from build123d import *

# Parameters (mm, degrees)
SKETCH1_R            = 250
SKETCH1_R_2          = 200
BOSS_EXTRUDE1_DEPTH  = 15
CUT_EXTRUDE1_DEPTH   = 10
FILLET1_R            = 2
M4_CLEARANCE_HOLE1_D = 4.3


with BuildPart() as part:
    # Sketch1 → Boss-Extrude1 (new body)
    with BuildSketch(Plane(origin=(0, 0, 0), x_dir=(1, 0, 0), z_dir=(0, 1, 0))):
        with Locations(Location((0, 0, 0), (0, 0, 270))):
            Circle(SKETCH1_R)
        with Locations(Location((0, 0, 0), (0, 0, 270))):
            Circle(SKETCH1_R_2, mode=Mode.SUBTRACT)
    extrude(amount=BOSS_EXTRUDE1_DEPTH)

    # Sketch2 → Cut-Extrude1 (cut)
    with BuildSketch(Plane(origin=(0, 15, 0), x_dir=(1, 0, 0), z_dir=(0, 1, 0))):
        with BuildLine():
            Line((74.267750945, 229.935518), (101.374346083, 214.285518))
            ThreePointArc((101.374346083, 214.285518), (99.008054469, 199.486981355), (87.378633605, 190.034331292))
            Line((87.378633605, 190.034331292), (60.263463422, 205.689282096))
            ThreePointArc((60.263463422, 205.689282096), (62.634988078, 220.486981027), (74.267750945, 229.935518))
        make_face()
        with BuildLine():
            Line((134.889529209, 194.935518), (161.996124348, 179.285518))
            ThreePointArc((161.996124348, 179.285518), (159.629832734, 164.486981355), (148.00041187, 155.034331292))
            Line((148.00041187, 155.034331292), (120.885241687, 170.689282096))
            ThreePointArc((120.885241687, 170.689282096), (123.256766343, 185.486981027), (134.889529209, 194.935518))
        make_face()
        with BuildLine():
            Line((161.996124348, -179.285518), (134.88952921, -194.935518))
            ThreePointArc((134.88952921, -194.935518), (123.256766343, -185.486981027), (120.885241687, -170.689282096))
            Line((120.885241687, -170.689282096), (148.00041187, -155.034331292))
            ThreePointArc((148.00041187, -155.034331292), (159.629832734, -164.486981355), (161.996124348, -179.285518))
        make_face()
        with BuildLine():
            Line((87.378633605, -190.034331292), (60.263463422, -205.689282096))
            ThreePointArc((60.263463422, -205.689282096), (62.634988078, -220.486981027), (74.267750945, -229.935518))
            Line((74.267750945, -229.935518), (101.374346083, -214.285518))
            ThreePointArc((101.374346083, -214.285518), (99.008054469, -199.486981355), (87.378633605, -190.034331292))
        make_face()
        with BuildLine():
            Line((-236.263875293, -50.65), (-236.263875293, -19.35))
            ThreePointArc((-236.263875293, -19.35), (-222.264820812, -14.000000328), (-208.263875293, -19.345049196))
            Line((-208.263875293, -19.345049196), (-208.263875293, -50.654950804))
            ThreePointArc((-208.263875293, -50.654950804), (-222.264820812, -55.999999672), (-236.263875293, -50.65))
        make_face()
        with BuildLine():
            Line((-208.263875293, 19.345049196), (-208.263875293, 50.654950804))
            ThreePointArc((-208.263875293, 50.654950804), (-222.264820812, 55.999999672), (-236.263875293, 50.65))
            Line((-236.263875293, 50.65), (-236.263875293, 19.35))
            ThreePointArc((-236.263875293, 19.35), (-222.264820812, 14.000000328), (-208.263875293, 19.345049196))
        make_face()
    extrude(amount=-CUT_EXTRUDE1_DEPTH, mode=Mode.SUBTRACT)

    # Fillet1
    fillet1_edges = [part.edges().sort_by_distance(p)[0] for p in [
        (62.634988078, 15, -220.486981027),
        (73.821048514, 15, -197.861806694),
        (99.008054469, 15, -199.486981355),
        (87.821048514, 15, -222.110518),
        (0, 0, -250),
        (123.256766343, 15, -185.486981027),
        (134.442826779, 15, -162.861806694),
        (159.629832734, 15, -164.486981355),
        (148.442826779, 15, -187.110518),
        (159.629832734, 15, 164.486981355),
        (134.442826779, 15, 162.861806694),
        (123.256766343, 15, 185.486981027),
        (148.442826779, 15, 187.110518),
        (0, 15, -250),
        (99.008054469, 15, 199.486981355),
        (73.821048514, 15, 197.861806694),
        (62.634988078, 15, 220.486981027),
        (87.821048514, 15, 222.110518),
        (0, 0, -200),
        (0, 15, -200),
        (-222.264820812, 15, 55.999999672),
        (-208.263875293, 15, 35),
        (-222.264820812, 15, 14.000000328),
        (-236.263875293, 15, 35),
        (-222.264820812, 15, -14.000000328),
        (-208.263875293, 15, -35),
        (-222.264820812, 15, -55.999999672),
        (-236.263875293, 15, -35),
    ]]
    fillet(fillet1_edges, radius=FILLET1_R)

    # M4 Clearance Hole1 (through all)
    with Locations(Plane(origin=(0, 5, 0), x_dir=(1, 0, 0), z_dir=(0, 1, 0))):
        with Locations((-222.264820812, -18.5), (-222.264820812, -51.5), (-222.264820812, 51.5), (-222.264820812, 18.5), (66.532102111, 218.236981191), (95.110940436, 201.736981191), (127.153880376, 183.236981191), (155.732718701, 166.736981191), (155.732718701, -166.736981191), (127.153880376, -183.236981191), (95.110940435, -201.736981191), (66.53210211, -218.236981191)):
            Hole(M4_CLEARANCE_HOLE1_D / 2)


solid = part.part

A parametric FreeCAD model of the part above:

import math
import FreeCAD as App
import Part
import Sketcher
Q = App.Units.Quantity


def edges_at(feature, points):
    """Names of the edges that pass closest to the given points."""
    edges = feature.Shape.Edges
    near = lambda p: min(range(len(edges)), key=lambda i: edges[i].distToShape(Part.Vertex(*p))[0])
    return sorted({f"Edge{near(p) + 1}" for p in points})

doc = App.newDocument("Part")
body = doc.addObject("PartDesign::Body", "Body")

# Sketch on XZ plane
sketch1 = body.newObject("Sketcher::SketchObject", "Sketch")
sketch1.AttachmentSupport = (doc.getObject("XZ_Plane"), [""])
sketch1.MapMode = "FlatFace"
sketch1.addGeometry([
    Part.Circle(App.Vector(0, 0, 0), App.Vector(0, 0, 1), 250),
    Part.Circle(App.Vector(0, 0, 0), App.Vector(0, 0, 1), 200),
], False)
sketch1.addConstraint([
    Sketcher.Constraint("Coincident", 0, 3, -1, 1),
    Sketcher.Constraint("Coincident", 1, 3, -1, 1),
    Sketcher.Constraint("Diameter", 0, 500.0),
    Sketcher.Constraint("Diameter", 1, 400.0),
])
pad1 = body.newObject("PartDesign::Pad", "Pad")
pad1.Profile = sketch1
pad1.Length = 15
pad1.Reversed = True

# Sketch on XZ plane
sketch2 = body.newObject("Sketcher::SketchObject", "Sketch001")
sketch2.AttachmentSupport = (doc.getObject("XZ_Plane"), [""])
sketch2.MapMode = "FlatFace"
sketch2.AttachmentOffset = App.Placement(App.Vector(0, 0, -15), App.Rotation())
sketch2.addGeometry([
    Part.LineSegment(App.Vector(101, -214, 0), App.Vector(74, -230, 0)),  # 0
    Part.ArcOfCircle(Part.Circle(App.Vector(81, -210, 0), App.Vector(0, 0, 1), 21), math.radians(168), math.radians(252)),  # 1
    Part.LineSegment(App.Vector(60, -206, 0), App.Vector(87, -190, 0)),  # 2
    Part.ArcOfCircle(Part.Circle(App.Vector(81, -210, 0), App.Vector(0, 0, 1), 21), math.radians(-12), math.radians(72)),  # 3
    Part.LineSegment(App.Vector(162, -179, 0), App.Vector(135, -195, 0)),  # 4
    Part.ArcOfCircle(Part.Circle(App.Vector(141, -175, 0), App.Vector(0, 0, 1), 21), math.radians(168), math.radians(252)),  # 5
    Part.LineSegment(App.Vector(121, -171, 0), App.Vector(148, -155, 0)),  # 6
    Part.ArcOfCircle(Part.Circle(App.Vector(141, -175, 0), App.Vector(0, 0, 1), 21), math.radians(-12), math.radians(72)),  # 7
    Part.LineSegment(App.Vector(135, 195, 0), App.Vector(162, 179, 0)),  # 8
    Part.ArcOfCircle(Part.Circle(App.Vector(141, 175, 0), App.Vector(0, 0, 1), 21), math.radians(-72), math.radians(12)),  # 9
    Part.LineSegment(App.Vector(148, 155, 0), App.Vector(121, 171, 0)),  # 10
    Part.ArcOfCircle(Part.Circle(App.Vector(141, 175, 0), App.Vector(0, 0, 1), 21), math.radians(108), math.radians(192)),  # 11
    Part.LineSegment(App.Vector(87, 190, 0), App.Vector(60, 206, 0)),  # 12
    Part.ArcOfCircle(Part.Circle(App.Vector(81, 210, 0), App.Vector(0, 0, 1), 21), math.radians(108), math.radians(192)),  # 13
    Part.LineSegment(App.Vector(74, 230, 0), App.Vector(101, 214, 0)),  # 14
    Part.ArcOfCircle(Part.Circle(App.Vector(81, 210, 0), App.Vector(0, 0, 1), 21), math.radians(-72), math.radians(12)),  # 15
    Part.LineSegment(App.Vector(-236, 19, 0), App.Vector(-236, 51, 0)),  # 16
    Part.ArcOfCircle(Part.Circle(App.Vector(-222, 35, 0), App.Vector(0, 0, 1), 21), math.radians(48), math.radians(132)),  # 17
    Part.LineSegment(App.Vector(-208, 51, 0), App.Vector(-208, 19, 0)),  # 18
    Part.ArcOfCircle(Part.Circle(App.Vector(-222, 35, 0), App.Vector(0, 0, 1), 21), math.radians(-132), math.radians(-48)),  # 19
    Part.LineSegment(App.Vector(-208, -19, 0), App.Vector(-208, -51, 0)),  # 20
    Part.ArcOfCircle(Part.Circle(App.Vector(-222, -35, 0), App.Vector(0, 0, 1), 21), math.radians(-132), math.radians(-48)),  # 21
    Part.LineSegment(App.Vector(-236, -51, 0), App.Vector(-236, -19, 0)),  # 22
    Part.ArcOfCircle(Part.Circle(App.Vector(-222, -35, 0), App.Vector(0, 0, 1), 21), math.radians(48), math.radians(132)),  # 23
], False)
sketch2.addConstraint([
    Sketcher.Constraint("Coincident", 0, 2, 1, 2),
    Sketcher.Constraint("Coincident", 1, 1, 2, 1),
    Sketcher.Constraint("Coincident", 2, 2, 3, 2),
    Sketcher.Constraint("Coincident", 3, 1, 0, 1),
    Sketcher.Constraint("Coincident", 4, 2, 5, 2),
    Sketcher.Constraint("Coincident", 5, 1, 6, 1),
    Sketcher.Constraint("Coincident", 6, 2, 7, 2),
    Sketcher.Constraint("Coincident", 7, 1, 4, 1),
    Sketcher.Constraint("Coincident", 8, 2, 9, 2),
    Sketcher.Constraint("Coincident", 9, 1, 10, 1),
    Sketcher.Constraint("Coincident", 10, 2, 11, 2),
    Sketcher.Constraint("Coincident", 11, 1, 8, 1),
    Sketcher.Constraint("Coincident", 12, 2, 13, 2),
    Sketcher.Constraint("Coincident", 13, 1, 14, 1),
    Sketcher.Constraint("Coincident", 14, 2, 15, 2),
    Sketcher.Constraint("Coincident", 15, 1, 12, 1),
    Sketcher.Constraint("Coincident", 16, 2, 17, 2),
    Sketcher.Constraint("Coincident", 17, 1, 18, 1),
    Sketcher.Constraint("Coincident", 18, 2, 19, 2),
    Sketcher.Constraint("Coincident", 19, 1, 16, 1),
    Sketcher.Constraint("Coincident", 20, 2, 21, 2),
    Sketcher.Constraint("Coincident", 21, 1, 22, 1),
    Sketcher.Constraint("Coincident", 22, 2, 23, 2),
    Sketcher.Constraint("Coincident", 23, 1, 20, 1),
    Sketcher.Constraint("Vertical", 16),
    Sketcher.Constraint("Vertical", 18),
    Sketcher.Constraint("Vertical", 20),
    Sketcher.Constraint("Vertical", 22),
    Sketcher.Constraint("Coincident", 3, 3, 1, 3),
    Sketcher.Constraint("Coincident", 7, 3, 5, 3),
    Sketcher.Constraint("Coincident", 11, 3, 9, 3),
    Sketcher.Constraint("Coincident", 15, 3, 13, 3),
    Sketcher.Constraint("Coincident", 19, 3, 17, 3),
    Sketcher.Constraint("Coincident", 23, 3, 21, 3),
    Sketcher.Constraint("Equal", 1, 3),
    Sketcher.Constraint("Equal", 3, 5),
    Sketcher.Constraint("Equal", 5, 7),
    Sketcher.Constraint("Equal", 7, 9),
    Sketcher.Constraint("Equal", 9, 11),
    Sketcher.Constraint("Equal", 11, 13),
    Sketcher.Constraint("Equal", 13, 15),
    Sketcher.Constraint("Equal", 15, 17),
    Sketcher.Constraint("Equal", 17, 19),
    Sketcher.Constraint("Equal", 19, 21),
    Sketcher.Constraint("Equal", 21, 23),
    Sketcher.Constraint("Symmetric", 5, 3, 9, 3, -1),
    Sketcher.Constraint("Symmetric", 1, 3, 13, 3, -1),
    Sketcher.Constraint("Symmetric", 17, 3, 21, 3, -1),
    Sketcher.Constraint("Parallel", 0, 2),
    Sketcher.Constraint("Parallel", 2, 4),
    Sketcher.Constraint("Parallel", 4, 6),
    Sketcher.Constraint("Parallel", 8, 10),
    Sketcher.Constraint("Parallel", 10, 12),
    Sketcher.Constraint("Parallel", 12, 14),
    Sketcher.Constraint("Vertical", 7, 1, 8, 2),
    Sketcher.Constraint("Vertical", 6, 2, 9, 1),
    Sketcher.Constraint("Vertical", 5, 1, 10, 2),
    Sketcher.Constraint("Vertical", 1, 1, 12, 2),
    Sketcher.Constraint("Vertical", 0, 2, 13, 1),
    Sketcher.Constraint("Vertical", 18, 2, 20, 2),
    Sketcher.Constraint("Vertical", 19, 1, 21, 1),
    Sketcher.Constraint("Equal", 0, 4),
    Sketcher.Constraint("Equal", 2, 6),
    Sketcher.Constraint("Radius", 1, 21.0),
    Sketcher.Constraint("Angle", 0, Q("-150 deg")),
    Sketcher.Constraint("DistanceY", 16, 1, 16, 2, 31.3),
    Sketcher.Constraint("DistanceY", -1, 1, 17, 3, 35.0),
    Sketcher.Constraint("DistanceY", 3, 3, 5, 3, 35.0),
    Sketcher.Constraint("DistanceX", 16, 2, 17, 1, 28.0),
    Sketcher.Constraint("Distance", 0, 31.3),
    Sketcher.Constraint("Distance", 2, 31.309902),
    Sketcher.Constraint("DistanceX", -1, 1, 0, 2, 74.267751),
    Sketcher.Constraint("DistanceY", 0, 2, -1, 1, 229.935518),
    Sketcher.Constraint("DistanceX", -1, 1, 4, 2, 134.889529),
    Sketcher.Constraint("DistanceX", 17, 3, 11, 3, 363.702551),
])
pocket1 = body.newObject("PartDesign::Pocket", "Pocket")
pocket1.Profile = sketch2
pocket1.Length = 10
pocket1.Reversed = True
doc.recompute()

fillet = body.newObject("PartDesign::Fillet", "Fillet")
fillet.Base = (pocket1, edges_at(pocket1, [
    (62.635, 15, -220.487),
    (73.821, 15, -197.862),
    (99.008, 15, -199.487),
    (87.821, 15, -222.111),
    (0, 0, -250),
    (123.257, 15, -185.487),
    (134.443, 15, -162.862),
    (159.63, 15, -164.487),
    (148.443, 15, -187.111),
    (159.63, 15, 164.487),
    (134.443, 15, 162.862),
    (123.257, 15, 185.487),
    (148.443, 15, 187.111),
    (0, 15, -250),
    (99.008, 15, 199.487),
    (73.821, 15, 197.862),
    (62.635, 15, 220.487),
    (87.821, 15, 222.111),
    (0, 0, -200),
    (0, 15, -200),
    (-222.265, 15, 56),
    (-208.264, 15, 35),
    (-222.265, 15, 14),
    (-236.264, 15, 35),
    (-222.265, 15, -14),
    (-208.264, 15, -35),
    (-222.265, 15, -56),
    (-236.264, 15, -35),
]))
fillet.Radius = 2

# Sketch on XZ plane
sketch3 = body.newObject("Sketcher::SketchObject", "Sketch002")
sketch3.AttachmentSupport = (doc.getObject("XZ_Plane"), [""])
sketch3.MapMode = "FlatFace"
sketch3.AttachmentOffset = App.Placement(App.Vector(0, 0, -5), App.Rotation())
sketch3.addGeometry([
    Part.Circle(App.Vector(-222.3, 18.5, 0), App.Vector(0, 0, 1), 2.1),  # 0
    Part.Circle(App.Vector(-222.3, 51.5, 0), App.Vector(0, 0, 1), 2.1),  # 1
    Part.Circle(App.Vector(-222.3, -51.5, 0), App.Vector(0, 0, 1), 2.1),  # 2
    Part.Circle(App.Vector(-222.3, -18.5, 0), App.Vector(0, 0, 1), 2.1),  # 3
    Part.Circle(App.Vector(66.5, -218.2, 0), App.Vector(0, 0, 1), 2.1),  # 4
    Part.Circle(App.Vector(95.1, -201.7, 0), App.Vector(0, 0, 1), 2.1),  # 5
    Part.Circle(App.Vector(127.2, -183.2, 0), App.Vector(0, 0, 1), 2.1),  # 6
    Part.Circle(App.Vector(155.7, -166.7, 0), App.Vector(0, 0, 1), 2.1),  # 7
    Part.Circle(App.Vector(155.7, 166.7, 0), App.Vector(0, 0, 1), 2.1),  # 8
    Part.Circle(App.Vector(127.2, 183.2, 0), App.Vector(0, 0, 1), 2.1),  # 9
    Part.Circle(App.Vector(95.1, 201.7, 0), App.Vector(0, 0, 1), 2.1),  # 10
    Part.Circle(App.Vector(66.5, 218.2, 0), App.Vector(0, 0, 1), 2.1),  # 11
], False)
sketch3.addConstraint([
    Sketcher.Constraint("Equal", 0, 1),
    Sketcher.Constraint("Equal", 1, 2),
    Sketcher.Constraint("Equal", 2, 3),
    Sketcher.Constraint("Equal", 3, 4),
    Sketcher.Constraint("Equal", 4, 5),
    Sketcher.Constraint("Equal", 5, 6),
    Sketcher.Constraint("Equal", 6, 7),
    Sketcher.Constraint("Equal", 7, 8),
    Sketcher.Constraint("Equal", 8, 9),
    Sketcher.Constraint("Equal", 9, 10),
    Sketcher.Constraint("Equal", 10, 11),
    Sketcher.Constraint("Symmetric", 1, 3, 2, 3, -1),
    Sketcher.Constraint("Symmetric", 0, 3, 3, 3, -1),
    Sketcher.Constraint("Symmetric", 7, 3, 8, 3, -1),
    Sketcher.Constraint("Symmetric", 6, 3, 9, 3, -1),
    Sketcher.Constraint("Symmetric", 5, 3, 10, 3, -1),
    Sketcher.Constraint("Symmetric", 4, 3, 11, 3, -1),
    Sketcher.Constraint("Vertical", 0, 3, 1, 3),
    Sketcher.Constraint("Diameter", 0, 4.3),
    Sketcher.Constraint("DistanceY", 0, 3, 1, 3, 33.0),
    Sketcher.Constraint("DistanceY", 2, 3, 0, 3, 70.0),
    Sketcher.Constraint("DistanceY", 4, 3, 6, 3, 35.0),
    Sketcher.Constraint("DistanceY", 5, 3, 7, 3, 35.0),
    Sketcher.Constraint("DistanceY", 4, 3, 5, 3, 16.5),
    Sketcher.Constraint("DistanceX", 2, 3, 6, 3, 349.418701),
    Sketcher.Constraint("DistanceX", 0, 3, -1, 1, 222.264821),
    Sketcher.Constraint("DistanceY", 4, 3, -1, 1, 218.236981),
    Sketcher.Constraint("DistanceX", -1, 1, 5, 3, 95.11094),
    Sketcher.Constraint("DistanceX", -1, 1, 7, 3, 155.732719),
    Sketcher.Constraint("DistanceX", 4, 3, 5, 3, 28.578838),
])
doc.recompute()
hole = body.newObject("PartDesign::Hole", "Hole")
hole.Profile = sketch3
hole.ThreadType = "None"
hole.Diameter = 4.3
hole.DepthType = "ThroughAll"
hole.Reversed = True

doc.recompute()
